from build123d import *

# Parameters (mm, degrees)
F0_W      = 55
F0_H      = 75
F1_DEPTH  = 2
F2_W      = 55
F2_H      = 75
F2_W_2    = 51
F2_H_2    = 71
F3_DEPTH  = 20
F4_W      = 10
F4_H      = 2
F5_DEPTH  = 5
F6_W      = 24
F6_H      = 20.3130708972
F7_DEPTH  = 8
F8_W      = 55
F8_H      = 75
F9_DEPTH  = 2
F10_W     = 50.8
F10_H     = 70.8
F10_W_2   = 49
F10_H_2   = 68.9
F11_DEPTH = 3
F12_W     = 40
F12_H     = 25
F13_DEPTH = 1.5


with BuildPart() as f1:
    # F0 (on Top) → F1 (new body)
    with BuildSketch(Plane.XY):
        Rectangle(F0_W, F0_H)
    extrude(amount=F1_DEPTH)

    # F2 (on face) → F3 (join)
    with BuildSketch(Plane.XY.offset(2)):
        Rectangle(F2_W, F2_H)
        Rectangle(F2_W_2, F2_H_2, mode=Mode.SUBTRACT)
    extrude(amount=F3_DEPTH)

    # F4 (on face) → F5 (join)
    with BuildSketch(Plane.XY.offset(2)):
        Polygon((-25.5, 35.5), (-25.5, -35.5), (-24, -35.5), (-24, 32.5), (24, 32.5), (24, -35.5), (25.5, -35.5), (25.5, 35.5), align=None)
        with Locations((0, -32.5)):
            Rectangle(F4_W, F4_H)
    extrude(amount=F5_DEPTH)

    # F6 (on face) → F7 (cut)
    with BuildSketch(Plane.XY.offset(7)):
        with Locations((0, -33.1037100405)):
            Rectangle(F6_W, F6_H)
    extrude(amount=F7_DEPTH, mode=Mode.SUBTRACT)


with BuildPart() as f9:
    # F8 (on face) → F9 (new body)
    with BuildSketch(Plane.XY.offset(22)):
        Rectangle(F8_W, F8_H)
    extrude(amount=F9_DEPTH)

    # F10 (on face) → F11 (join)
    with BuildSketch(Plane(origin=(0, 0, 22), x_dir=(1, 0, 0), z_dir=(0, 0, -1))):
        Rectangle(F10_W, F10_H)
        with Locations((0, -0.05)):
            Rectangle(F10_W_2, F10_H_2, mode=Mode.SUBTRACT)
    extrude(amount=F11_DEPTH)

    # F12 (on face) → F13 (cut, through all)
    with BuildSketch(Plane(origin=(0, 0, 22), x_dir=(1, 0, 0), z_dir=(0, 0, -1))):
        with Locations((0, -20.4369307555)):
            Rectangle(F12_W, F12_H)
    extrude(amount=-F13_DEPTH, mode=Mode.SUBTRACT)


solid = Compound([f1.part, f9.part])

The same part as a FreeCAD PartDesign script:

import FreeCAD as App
import Part
import Sketcher
Q = App.Units.Quantity

doc = App.newDocument("Part")
params = doc.addObject("Spreadsheet::Sheet", "Params")
for row, (alias, value) in enumerate([
    ("sketch1_width", "55 mm"),
    ("sketch1_height", "75 mm"),
    ("pad1_length", "2 mm"),
    ("sketch2_width", "55 mm"),
    ("sketch2_width2", "51 mm"),
    ("sketch2_height", "75 mm"),
    ("sketch2_height2", "71 mm"),
    ("pad2_length", "20 mm"),
    ("sketch3_width", "48 mm"),
    ("sketch3_width2", "51 mm"),
    ("sketch3_width3", "10 mm"),
    ("sketch3_height", "71 mm"),
    ("sketch3_height2", "68 mm"),
    ("pad3_length", "5 mm"),
    ("sketch4_width", "24 mm"),
    ("pocket1_length", "8 mm"),
    ("sketch5_width", "55 mm"),
    ("sketch5_height", "75 mm"),
    ("pad4_length", "2 mm"),
    ("sketch6_width", "49 mm"),
    ("sketch6_width2", "50.8 mm"),
    ("sketch6_height", "70.8 mm"),
    ("sketch6_height2", "68.9 mm"),
    ("pad5_length", "3 mm"),
    ("sketch7_width", "40 mm"),
    ("sketch7_height", "25 mm"),
    ("pocket2_length", "1.5 mm"),
], start=1):
    params.set(f"A{row}", alias)
    params.set(f"B{row}", "=" + value)
    params.setAlias(f"B{row}", alias)

body = doc.addObject("PartDesign::Body", "Body")

# Sketch on XY plane
sketch1 = doc.addObject("Sketcher::SketchObject", "Sketch")
body.addObject(sketch1)
sketch1.AttachmentSupport = (doc.XY_Plane, [""])
sketch1.MapMode = "FlatFace"
sketch1.addGeometry([
    Part.LineSegment(App.Vector(-28, 38, 0), App.Vector(-28, -38, 0)),
    Part.LineSegment(App.Vector(-28, -38, 0), App.Vector(28, -38, 0)),
    Part.LineSegment(App.Vector(28, -38, 0), App.Vector(28, 38, 0)),
    Part.LineSegment(App.Vector(28, 38, 0), App.Vector(-28, 38, 0)),
], False)
sketch1.addConstraint([
    Sketcher.Constraint("Coincident", 0, 2, 1, 1),
    Sketcher.Constraint("Coincident", 1, 2, 2, 1),
    Sketcher.Constraint("Coincident", 2, 2, 3, 1),
    Sketcher.Constraint("Coincident", 3, 2, 0, 1),
    Sketcher.Constraint("Vertical", 0),
    Sketcher.Constraint("Horizontal", 1),
    Sketcher.Constraint("Vertical", 2),
    Sketcher.Constraint("Horizontal", 3),
    Sketcher.Constraint("Symmetric", 0, 2, 2, 2, -1, 1),
    Sketcher.Constraint("DistanceX", 1, 1, 1, 2, Q("55 mm")),
    Sketcher.Constraint("DistanceY", 0, 2, 0, 1, Q("75 mm")),
])
sketch1.setExpression("Constraints[9]", "Params.sketch1_width")
sketch1.setExpression("Constraints[10]", "Params.sketch1_height")
pad1 = doc.addObject("PartDesign::Pad", "Pad")
body.addObject(pad1)
pad1.Profile = sketch1
pad1.setExpression("Length", "Params.pad1_length")

# Sketch on XY plane
sketch2 = doc.addObject("Sketcher::SketchObject", "Sketch001")
body.addObject(sketch2)
sketch2.AttachmentSupport = (doc.XY_Plane, [""])
sketch2.MapMode = "FlatFace"
sketch2.AttachmentOffset = App.Placement(App.Vector(0, 0, 2), App.Rotation())
sketch2.addGeometry([
    Part.LineSegment(App.Vector(-28, 38, 0), App.Vector(-28, -38, 0)),  # 0
    Part.LineSegment(App.Vector(-28, -38, 0), App.Vector(28, -38, 0)),  # 1
    Part.LineSegment(App.Vector(28, -38, 0), App.Vector(28, 38, 0)),  # 2
    Part.LineSegment(App.Vector(28, 38, 0), App.Vector(-28, 38, 0)),  # 3
    Part.LineSegment(App.Vector(26, -36, 0), App.Vector(-26, -36, 0)),  # 4
    Part.LineSegment(App.Vector(-26, -36, 0), App.Vector(-26, 36, 0)),  # 5
    Part.LineSegment(App.Vector(-26, 36, 0), App.Vector(26, 36, 0)),  # 6
    Part.LineSegment(App.Vector(26, 36, 0), App.Vector(26, -36, 0)),  # 7
], False)
sketch2.addConstraint([
    Sketcher.Constraint("Coincident", 0, 2, 1, 1),
    Sketcher.Constraint("Coincident", 1, 2, 2, 1),
    Sketcher.Constraint("Coincident", 2, 2, 3, 1),
    Sketcher.Constraint("Coincident", 3, 2, 0, 1),
    Sketcher.Constraint("Coincident", 4, 2, 5, 1),
    Sketcher.Constraint("Coincident", 5, 2, 6, 1),
    Sketcher.Constraint("Coincident", 6, 2, 7, 1),
    Sketcher.Constraint("Coincident", 7, 2, 4, 1),
    Sketcher.Constraint("Vertical", 0),
    Sketcher.Constraint("Horizontal", 1),
    Sketcher.Constraint("Vertical", 2),
    Sketcher.Constraint("Horizontal", 3),
    Sketcher.Constraint("Horizontal", 4),
    Sketcher.Constraint("Vertical", 5),
    Sketcher.Constraint("Horizontal", 6),
    Sketcher.Constraint("Vertical", 7),
    Sketcher.Constraint("Symmetric", 0, 2, 2, 2, -1, 1),
    Sketcher.Constraint("Symmetric", 4, 2, 6, 2, -1, 1),
    Sketcher.Constraint("DistanceX", 1, 1, 1, 2, Q("55 mm")),
    Sketcher.Constraint("DistanceX", 4, 2, 4, 1, Q("51 mm")),
    Sketcher.Constraint("DistanceY", 0, 2, 0, 1, Q("75 mm")),
    Sketcher.Constraint("DistanceY", 5, 1, 5, 2, Q("71 mm")),
])
sketch2.setExpression("Constraints[18]", "Params.sketch2_width")
sketch2.setExpression("Constraints[19]", "Params.sketch2_width2")
sketch2.setExpression("Constraints[20]", "Params.sketch2_height")
sketch2.setExpression("Constraints[21]", "Params.sketch2_height2")
pad2 = doc.addObject("PartDesign::Pad", "Pad001")
body.addObject(pad2)
pad2.Profile = sketch2
pad2.setExpression("Length", "Params.pad2_length")

# Sketch on XY plane
sketch3 = doc.addObject("Sketcher::SketchObject", "Sketch002")
body.addObject(sketch3)
sketch3.AttachmentSupport = (doc.XY_Plane, [""])
sketch3.MapMode = "FlatFace"
sketch3.AttachmentOffset = App.Placement(App.Vector(0, 0, 2), App.Rotation())
sketch3.addGeometry([
    Part.LineSegment(App.Vector(-25.5, 35.5, 0), App.Vector(-25.5, -35.5, 0)),  # 0
    Part.LineSegment(App.Vector(-25.5, -35.5, 0), App.Vector(-24, -35.5, 0)),  # 1
    Part.LineSegment(App.Vector(-24, -35.5, 0), App.Vector(-24, 32.5, 0)),  # 2
    Part.LineSegment(App.Vector(-24, 32.5, 0), App.Vector(24, 32.5, 0)),  # 3
    Part.LineSegment(App.Vector(24, 32.5, 0), App.Vector(24, -35.5, 0)),  # 4
    Part.LineSegment(App.Vector(24, -35.5, 0), App.Vector(25.5, -35.5, 0)),  # 5
    Part.LineSegment(App.Vector(25.5, -35.5, 0), App.Vector(25.5, 35.5, 0)),  # 6
    Part.LineSegment(App.Vector(25.5, 35.5, 0), App.Vector(-25.5, 35.5, 0)),  # 7
    Part.LineSegment(App.Vector(-5, -31.5, 0), App.Vector(-5, -33.5, 0)),  # 8
    Part.LineSegment(App.Vector(-5, -33.5, 0), App.Vector(5, -33.5, 0)),  # 9
    Part.LineSegment(App.Vector(5, -33.5, 0), App.Vector(5, -31.5, 0)),  # 10
    Part.LineSegment(App.Vector(5, -31.5, 0), App.Vector(-5, -31.5, 0)),  # 11
], False)
sketch3.addConstraint([
    Sketcher.Constraint("Coincident", 0, 2, 1, 1),
    Sketcher.Constraint("Coincident", 1, 2, 2, 1),
    Sketcher.Constraint("Coincident", 2, 2, 3, 1),
    Sketcher.Constraint("Coincident", 3, 2, 4, 1),
    Sketcher.Constraint("Coincident", 4, 2, 5, 1),
    Sketcher.Constraint("Coincident", 5, 2, 6, 1),
    Sketcher.Constraint("Coincident", 6, 2, 7, 1),
    Sketcher.Constraint("Coincident", 7, 2, 0, 1),
    Sketcher.Constraint("Coincident", 8, 2, 9, 1),
    Sketcher.Constraint("Coincident", 9, 2, 10, 1),
    Sketcher.Constraint("Coincident", 10, 2, 11, 1),
    Sketcher.Constraint("Coincident", 11, 2, 8, 1),
    Sketcher.Constraint("Vertical", 0),
    Sketcher.Constraint("Horizontal", 1),
    Sketcher.Constraint("Vertical", 2),
    Sketcher.Constraint("Horizontal", 3),
    Sketcher.Constraint("Vertical", 4),
    Sketcher.Constraint("Horizontal", 5),
    Sketcher.Constraint("Vertical", 6),
    Sketcher.Constraint("Horizontal", 7),
    Sketcher.Constraint("Vertical", 8),
    Sketcher.Constraint("Horizontal", 9),
    Sketcher.Constraint("Vertical", 10),
    Sketcher.Constraint("Horizontal", 11),
    Sketcher.Constraint("Symmetric", 0, 2, 6, 2, -1, 1),
    Sketcher.Constraint("Symmetric", 1, 2, 4, 2, -2),
    Sketcher.Constraint("DistanceX", 3, 1, 3, 2, Q("48 mm")),
    Sketcher.Constraint("DistanceX", 7, 2, 7, 1, Q("51 mm")),
    Sketcher.Constraint("DistanceX", 9, 1, 9, 2, Q("10 mm")),
    Sketcher.Constraint("DistanceY", 0, 2, 0, 1, Q("71 mm")),
    Sketcher.Constraint("DistanceY", 2, 1, 2, 2, Q("68 mm")),
    Sketcher.Constraint("DistanceY", 8, 2, 8, 1, Q("2 mm")),
    Sketcher.Constraint("DistanceX", 8, 2, -1, 1, Q("5 mm")),
    Sketcher.Constraint("DistanceY", 1, 2, 8, 2, Q("2 mm")),
])
sketch3.setExpression("Constraints[26]", "Params.sketch3_width")
sketch3.setExpression("Constraints[27]", "Params.sketch3_width2")
sketch3.setExpression("Constraints[28]", "Params.sketch3_width3")
sketch3.setExpression("Constraints[29]", "Params.sketch3_height")
sketch3.setExpression("Constraints[30]", "Params.sketch3_height2")
pad3 = doc.addObject("PartDesign::Pad", "Pad002")
body.addObject(pad3)
pad3.Profile = sketch3
pad3.setExpression("Length", "Params.pad3_length")

# Sketch on XY plane
sketch4 = doc.addObject("Sketcher::SketchObject", "Sketch003")
body.addObject(sketch4)
sketch4.AttachmentSupport = (doc.XY_Plane, [""])
sketch4.MapMode = "FlatFace"
sketch4.AttachmentOffset = App.Placement(App.Vector(0, 0, 7), App.Rotation())
sketch4.addGeometry([
    Part.LineSegment(App.Vector(-12, -23, 0), App.Vector(-12, -43, 0)),
    Part.LineSegment(App.Vector(-12, -43, 0), App.Vector(12, -43, 0)),
    Part.LineSegment(App.Vector(12, -43, 0), App.Vector(12, -23, 0)),
    Part.LineSegment(App.Vector(12, -23, 0), App.Vector(-12, -23, 0)),
], False)
sketch4.addConstraint([
    Sketcher.Constraint("Coincident", 0, 2, 1, 1),
    Sketcher.Constraint("Coincident", 1, 2, 2, 1),
    Sketcher.Constraint("Coincident", 2, 2, 3, 1),
    Sketcher.Constraint("Coincident", 3, 2, 0, 1),
    Sketcher.Constraint("Vertical", 0),
    Sketcher.Constraint("Horizontal", 1),
    Sketcher.Constraint("Vertical", 2),
    Sketcher.Constraint("Horizontal", 3),
    Sketcher.Constraint("DistanceX", 1, 1, 1, 2, Q("24 mm")),
    Sketcher.Constraint("DistanceX", 0, 2, -1, 1, Q("12 mm")),
    Sketcher.Constraint("DistanceY", 0, 2, 0, 1, Q("20.313071 mm")),
    Sketcher.Constraint("DistanceY", 0, 2, -1, 1, Q("43.260245 mm")),
])
sketch4.setExpression("Constraints[8]", "Params.sketch4_width")
pocket1 = doc.addObject("PartDesign::Pocket", "Pocket")
body.addObject(pocket1)
pocket1.Profile = sketch4
pocket1.setExpression("Length", "Params.pocket1_length")
pocket1.Reversed = True
body2 = doc.addObject("PartDesign::Body", "Body001")

# Sketch on XY plane
sketch5 = doc.addObject("Sketcher::SketchObject", "Sketch004")
body2.addObject(sketch5)
sketch5.AttachmentSupport = (doc.getObject("XY_Plane001"), [""])
sketch5.MapMode = "FlatFace"
sketch5.AttachmentOffset = App.Placement(App.Vector(0, 0, 22), App.Rotation())
sketch5.addGeometry([
    Part.LineSegment(App.Vector(-28, 38, 0), App.Vector(-28, -38, 0)),
    Part.LineSegment(App.Vector(-28, -38, 0), App.Vector(28, -38, 0)),
    Part.LineSegment(App.Vector(28, -38, 0), App.Vector(28, 38, 0)),
    Part.LineSegment(App.Vector(28, 38, 0), App.Vector(-28, 38, 0)),
], False)
sketch5.addConstraint([
    Sketcher.Constraint("Coincident", 0, 2, 1, 1),
    Sketcher.Constraint("Coincident", 1, 2, 2, 1),
    Sketcher.Constraint("Coincident", 2, 2, 3, 1),
    Sketcher.Constraint("Coincident", 3, 2, 0, 1),
    Sketcher.Constraint("Vertical", 0),
    Sketcher.Constraint("Horizontal", 1),
    Sketcher.Constraint("Vertical", 2),
    Sketcher.Constraint("Horizontal", 3),
    Sketcher.Constraint("Symmetric", 0, 2, 2, 2, -1, 1),
    Sketcher.Constraint("DistanceX", 1, 1, 1, 2, Q("55 mm")),
    Sketcher.Constraint("DistanceY", 0, 2, 0, 1, Q("75 mm")),
])
sketch5.setExpression("Constraints[9]", "Params.sketch5_width")
sketch5.setExpression("Constraints[10]", "Params.sketch5_height")
pad4 = doc.addObject("PartDesign::Pad", "Pad003")
body2.addObject(pad4)
pad4.Profile = sketch5
pad4.setExpression("Length", "Params.pad4_length")

# Sketch on XY plane
sketch6 = doc.addObject("Sketcher::SketchObject", "Sketch005")
body2.addObject(sketch6)
sketch6.AttachmentSupport = (doc.getObject("XY_Plane001"), [""])
sketch6.MapMode = "FlatFace"
sketch6.AttachmentOffset = App.Placement(App.Vector(0, 0, 22), App.Rotation())
sketch6.addGeometry([
    Part.LineSegment(App.Vector(-25, -35, 0), App.Vector(-25, 35, 0)),  # 0
    Part.LineSegment(App.Vector(-25, 35, 0), App.Vector(25, 35, 0)),  # 1
    Part.LineSegment(App.Vector(25, 35, 0), App.Vector(25, -35, 0)),  # 2
    Part.LineSegment(App.Vector(25, -35, 0), App.Vector(-25, -35, 0)),  # 3
    Part.LineSegment(App.Vector(24, 34, 0), App.Vector(-24, 34, 0)),  # 4
    Part.LineSegment(App.Vector(-24, 34, 0), App.Vector(-24, -34, 0)),  # 5
    Part.LineSegment(App.Vector(-24, -34, 0), App.Vector(24, -34, 0)),  # 6
    Part.LineSegment(App.Vector(24, -34, 0), App.Vector(24, 34, 0)),  # 7
], False)
sketch6.addConstraint([
    Sketcher.Constraint("Coincident", 0, 2, 1, 1),
    Sketcher.Constraint("Coincident", 1, 2, 2, 1),
    Sketcher.Constraint("Coincident", 2, 2, 3, 1),
    Sketcher.Constraint("Coincident", 3, 2, 0, 1),
    Sketcher.Constraint("Coincident", 4, 2, 5, 1),
    Sketcher.Constraint("Coincident", 5, 2, 6, 1),
    Sketcher.Constraint("Coincident", 6, 2, 7, 1),
    Sketcher.Constraint("Coincident", 7, 2, 4, 1),
    Sketcher.Constraint("Vertical", 0),
    Sketcher.Constraint("Horizontal", 1),
    Sketcher.Constraint("Vertical", 2),
    Sketcher.Constraint("Horizontal", 3),
    Sketcher.Constraint("Horizontal", 4),
    Sketcher.Constraint("Vertical", 5),
    Sketcher.Constraint("Horizontal", 6),
    Sketcher.Constraint("Vertical", 7),
    Sketcher.Constraint("Symmetric", 0, 2, 2, 2, -1, 1),
    Sketcher.Constraint("DistanceX", 4, 2, 4, 1, Q("49 mm")),
    Sketcher.Constraint("DistanceX", 1, 1, 1, 2, Q("50.8 mm")),
    Sketcher.Constraint("DistanceY", 0, 1, 0, 2, Q("70.8 mm")),
    Sketcher.Constraint("DistanceY", 5, 2, 5, 1, Q("68.9 mm")),
    Sketcher.Constraint("DistanceY", 3, 2, 5, 2, Q("1 mm")),
    Sketcher.Constraint("DistanceX", 4, 2, -1, 1, Q("24.5 mm")),
])
sketch6.setExpression("Constraints[17]", "Params.sketch6_width")
sketch6.setExpression("Constraints[18]", "Params.sketch6_width2")
sketch6.setExpression("Constraints[19]", "Params.sketch6_height")
sketch6.setExpression("Constraints[20]", "Params.sketch6_height2")
pad5 = doc.addObject("PartDesign::Pad", "Pad004")
body2.addObject(pad5)
pad5.Profile = sketch6
pad5.setExpression("Length", "Params.pad5_length")
pad5.Reversed = True

# Sketch on XY plane
sketch7 = doc.addObject("Sketcher::SketchObject", "Sketch006")
body2.addObject(sketch7)
sketch7.AttachmentSupport = (doc.getObject("XY_Plane001"), [""])
sketch7.MapMode = "FlatFace"
sketch7.AttachmentOffset = App.Placement(App.Vector(0, 0, 22), App.Rotation())
sketch7.addGeometry([
    Part.LineSegment(App.Vector(-20, 8, 0), App.Vector(-20, 33, 0)),
    Part.LineSegment(App.Vector(-20, 33, 0), App.Vector(20, 33, 0)),
    Part.LineSegment(App.Vector(20, 33, 0), App.Vector(20, 8, 0)),
    Part.LineSegment(App.Vector(20, 8, 0), App.Vector(-20, 8, 0)),
], False)
sketch7.addConstraint([
    Sketcher.Constraint("Coincident", 0, 2, 1, 1),
    Sketcher.Constraint("Coincident", 1, 2, 2, 1),
    Sketcher.Constraint("Coincident", 2, 2, 3, 1),
    Sketcher.Constraint("Coincident", 3, 2, 0, 1),
    Sketcher.Constraint("Vertical", 0),
    Sketcher.Constraint("Horizontal", 1),
    Sketcher.Constraint("Vertical", 2),
    Sketcher.Constraint("Horizontal", 3),
    Sketcher.Constraint("DistanceX", 1, 1, 1, 2, Q("40 mm")),
    Sketcher.Constraint("DistanceY", 0, 1, 0, 2, Q("25 mm")),
    Sketcher.Constraint("DistanceX", 0, 2, -1, 1, Q("20 mm")),
    Sketcher.Constraint("DistanceY", -1, 1, 0, 2, Q("32.936931 mm")),
])
sketch7.setExpression("Constraints[8]", "Params.sketch7_width")
sketch7.setExpression("Constraints[9]", "Params.sketch7_height")
pocket2 = doc.addObject("PartDesign::Pocket", "Pocket001")
body2.addObject(pocket2)
pocket2.Profile = sketch7
pocket2.setExpression("Length", "Params.pocket2_length")
pocket2.Reversed = True

doc.recompute()
